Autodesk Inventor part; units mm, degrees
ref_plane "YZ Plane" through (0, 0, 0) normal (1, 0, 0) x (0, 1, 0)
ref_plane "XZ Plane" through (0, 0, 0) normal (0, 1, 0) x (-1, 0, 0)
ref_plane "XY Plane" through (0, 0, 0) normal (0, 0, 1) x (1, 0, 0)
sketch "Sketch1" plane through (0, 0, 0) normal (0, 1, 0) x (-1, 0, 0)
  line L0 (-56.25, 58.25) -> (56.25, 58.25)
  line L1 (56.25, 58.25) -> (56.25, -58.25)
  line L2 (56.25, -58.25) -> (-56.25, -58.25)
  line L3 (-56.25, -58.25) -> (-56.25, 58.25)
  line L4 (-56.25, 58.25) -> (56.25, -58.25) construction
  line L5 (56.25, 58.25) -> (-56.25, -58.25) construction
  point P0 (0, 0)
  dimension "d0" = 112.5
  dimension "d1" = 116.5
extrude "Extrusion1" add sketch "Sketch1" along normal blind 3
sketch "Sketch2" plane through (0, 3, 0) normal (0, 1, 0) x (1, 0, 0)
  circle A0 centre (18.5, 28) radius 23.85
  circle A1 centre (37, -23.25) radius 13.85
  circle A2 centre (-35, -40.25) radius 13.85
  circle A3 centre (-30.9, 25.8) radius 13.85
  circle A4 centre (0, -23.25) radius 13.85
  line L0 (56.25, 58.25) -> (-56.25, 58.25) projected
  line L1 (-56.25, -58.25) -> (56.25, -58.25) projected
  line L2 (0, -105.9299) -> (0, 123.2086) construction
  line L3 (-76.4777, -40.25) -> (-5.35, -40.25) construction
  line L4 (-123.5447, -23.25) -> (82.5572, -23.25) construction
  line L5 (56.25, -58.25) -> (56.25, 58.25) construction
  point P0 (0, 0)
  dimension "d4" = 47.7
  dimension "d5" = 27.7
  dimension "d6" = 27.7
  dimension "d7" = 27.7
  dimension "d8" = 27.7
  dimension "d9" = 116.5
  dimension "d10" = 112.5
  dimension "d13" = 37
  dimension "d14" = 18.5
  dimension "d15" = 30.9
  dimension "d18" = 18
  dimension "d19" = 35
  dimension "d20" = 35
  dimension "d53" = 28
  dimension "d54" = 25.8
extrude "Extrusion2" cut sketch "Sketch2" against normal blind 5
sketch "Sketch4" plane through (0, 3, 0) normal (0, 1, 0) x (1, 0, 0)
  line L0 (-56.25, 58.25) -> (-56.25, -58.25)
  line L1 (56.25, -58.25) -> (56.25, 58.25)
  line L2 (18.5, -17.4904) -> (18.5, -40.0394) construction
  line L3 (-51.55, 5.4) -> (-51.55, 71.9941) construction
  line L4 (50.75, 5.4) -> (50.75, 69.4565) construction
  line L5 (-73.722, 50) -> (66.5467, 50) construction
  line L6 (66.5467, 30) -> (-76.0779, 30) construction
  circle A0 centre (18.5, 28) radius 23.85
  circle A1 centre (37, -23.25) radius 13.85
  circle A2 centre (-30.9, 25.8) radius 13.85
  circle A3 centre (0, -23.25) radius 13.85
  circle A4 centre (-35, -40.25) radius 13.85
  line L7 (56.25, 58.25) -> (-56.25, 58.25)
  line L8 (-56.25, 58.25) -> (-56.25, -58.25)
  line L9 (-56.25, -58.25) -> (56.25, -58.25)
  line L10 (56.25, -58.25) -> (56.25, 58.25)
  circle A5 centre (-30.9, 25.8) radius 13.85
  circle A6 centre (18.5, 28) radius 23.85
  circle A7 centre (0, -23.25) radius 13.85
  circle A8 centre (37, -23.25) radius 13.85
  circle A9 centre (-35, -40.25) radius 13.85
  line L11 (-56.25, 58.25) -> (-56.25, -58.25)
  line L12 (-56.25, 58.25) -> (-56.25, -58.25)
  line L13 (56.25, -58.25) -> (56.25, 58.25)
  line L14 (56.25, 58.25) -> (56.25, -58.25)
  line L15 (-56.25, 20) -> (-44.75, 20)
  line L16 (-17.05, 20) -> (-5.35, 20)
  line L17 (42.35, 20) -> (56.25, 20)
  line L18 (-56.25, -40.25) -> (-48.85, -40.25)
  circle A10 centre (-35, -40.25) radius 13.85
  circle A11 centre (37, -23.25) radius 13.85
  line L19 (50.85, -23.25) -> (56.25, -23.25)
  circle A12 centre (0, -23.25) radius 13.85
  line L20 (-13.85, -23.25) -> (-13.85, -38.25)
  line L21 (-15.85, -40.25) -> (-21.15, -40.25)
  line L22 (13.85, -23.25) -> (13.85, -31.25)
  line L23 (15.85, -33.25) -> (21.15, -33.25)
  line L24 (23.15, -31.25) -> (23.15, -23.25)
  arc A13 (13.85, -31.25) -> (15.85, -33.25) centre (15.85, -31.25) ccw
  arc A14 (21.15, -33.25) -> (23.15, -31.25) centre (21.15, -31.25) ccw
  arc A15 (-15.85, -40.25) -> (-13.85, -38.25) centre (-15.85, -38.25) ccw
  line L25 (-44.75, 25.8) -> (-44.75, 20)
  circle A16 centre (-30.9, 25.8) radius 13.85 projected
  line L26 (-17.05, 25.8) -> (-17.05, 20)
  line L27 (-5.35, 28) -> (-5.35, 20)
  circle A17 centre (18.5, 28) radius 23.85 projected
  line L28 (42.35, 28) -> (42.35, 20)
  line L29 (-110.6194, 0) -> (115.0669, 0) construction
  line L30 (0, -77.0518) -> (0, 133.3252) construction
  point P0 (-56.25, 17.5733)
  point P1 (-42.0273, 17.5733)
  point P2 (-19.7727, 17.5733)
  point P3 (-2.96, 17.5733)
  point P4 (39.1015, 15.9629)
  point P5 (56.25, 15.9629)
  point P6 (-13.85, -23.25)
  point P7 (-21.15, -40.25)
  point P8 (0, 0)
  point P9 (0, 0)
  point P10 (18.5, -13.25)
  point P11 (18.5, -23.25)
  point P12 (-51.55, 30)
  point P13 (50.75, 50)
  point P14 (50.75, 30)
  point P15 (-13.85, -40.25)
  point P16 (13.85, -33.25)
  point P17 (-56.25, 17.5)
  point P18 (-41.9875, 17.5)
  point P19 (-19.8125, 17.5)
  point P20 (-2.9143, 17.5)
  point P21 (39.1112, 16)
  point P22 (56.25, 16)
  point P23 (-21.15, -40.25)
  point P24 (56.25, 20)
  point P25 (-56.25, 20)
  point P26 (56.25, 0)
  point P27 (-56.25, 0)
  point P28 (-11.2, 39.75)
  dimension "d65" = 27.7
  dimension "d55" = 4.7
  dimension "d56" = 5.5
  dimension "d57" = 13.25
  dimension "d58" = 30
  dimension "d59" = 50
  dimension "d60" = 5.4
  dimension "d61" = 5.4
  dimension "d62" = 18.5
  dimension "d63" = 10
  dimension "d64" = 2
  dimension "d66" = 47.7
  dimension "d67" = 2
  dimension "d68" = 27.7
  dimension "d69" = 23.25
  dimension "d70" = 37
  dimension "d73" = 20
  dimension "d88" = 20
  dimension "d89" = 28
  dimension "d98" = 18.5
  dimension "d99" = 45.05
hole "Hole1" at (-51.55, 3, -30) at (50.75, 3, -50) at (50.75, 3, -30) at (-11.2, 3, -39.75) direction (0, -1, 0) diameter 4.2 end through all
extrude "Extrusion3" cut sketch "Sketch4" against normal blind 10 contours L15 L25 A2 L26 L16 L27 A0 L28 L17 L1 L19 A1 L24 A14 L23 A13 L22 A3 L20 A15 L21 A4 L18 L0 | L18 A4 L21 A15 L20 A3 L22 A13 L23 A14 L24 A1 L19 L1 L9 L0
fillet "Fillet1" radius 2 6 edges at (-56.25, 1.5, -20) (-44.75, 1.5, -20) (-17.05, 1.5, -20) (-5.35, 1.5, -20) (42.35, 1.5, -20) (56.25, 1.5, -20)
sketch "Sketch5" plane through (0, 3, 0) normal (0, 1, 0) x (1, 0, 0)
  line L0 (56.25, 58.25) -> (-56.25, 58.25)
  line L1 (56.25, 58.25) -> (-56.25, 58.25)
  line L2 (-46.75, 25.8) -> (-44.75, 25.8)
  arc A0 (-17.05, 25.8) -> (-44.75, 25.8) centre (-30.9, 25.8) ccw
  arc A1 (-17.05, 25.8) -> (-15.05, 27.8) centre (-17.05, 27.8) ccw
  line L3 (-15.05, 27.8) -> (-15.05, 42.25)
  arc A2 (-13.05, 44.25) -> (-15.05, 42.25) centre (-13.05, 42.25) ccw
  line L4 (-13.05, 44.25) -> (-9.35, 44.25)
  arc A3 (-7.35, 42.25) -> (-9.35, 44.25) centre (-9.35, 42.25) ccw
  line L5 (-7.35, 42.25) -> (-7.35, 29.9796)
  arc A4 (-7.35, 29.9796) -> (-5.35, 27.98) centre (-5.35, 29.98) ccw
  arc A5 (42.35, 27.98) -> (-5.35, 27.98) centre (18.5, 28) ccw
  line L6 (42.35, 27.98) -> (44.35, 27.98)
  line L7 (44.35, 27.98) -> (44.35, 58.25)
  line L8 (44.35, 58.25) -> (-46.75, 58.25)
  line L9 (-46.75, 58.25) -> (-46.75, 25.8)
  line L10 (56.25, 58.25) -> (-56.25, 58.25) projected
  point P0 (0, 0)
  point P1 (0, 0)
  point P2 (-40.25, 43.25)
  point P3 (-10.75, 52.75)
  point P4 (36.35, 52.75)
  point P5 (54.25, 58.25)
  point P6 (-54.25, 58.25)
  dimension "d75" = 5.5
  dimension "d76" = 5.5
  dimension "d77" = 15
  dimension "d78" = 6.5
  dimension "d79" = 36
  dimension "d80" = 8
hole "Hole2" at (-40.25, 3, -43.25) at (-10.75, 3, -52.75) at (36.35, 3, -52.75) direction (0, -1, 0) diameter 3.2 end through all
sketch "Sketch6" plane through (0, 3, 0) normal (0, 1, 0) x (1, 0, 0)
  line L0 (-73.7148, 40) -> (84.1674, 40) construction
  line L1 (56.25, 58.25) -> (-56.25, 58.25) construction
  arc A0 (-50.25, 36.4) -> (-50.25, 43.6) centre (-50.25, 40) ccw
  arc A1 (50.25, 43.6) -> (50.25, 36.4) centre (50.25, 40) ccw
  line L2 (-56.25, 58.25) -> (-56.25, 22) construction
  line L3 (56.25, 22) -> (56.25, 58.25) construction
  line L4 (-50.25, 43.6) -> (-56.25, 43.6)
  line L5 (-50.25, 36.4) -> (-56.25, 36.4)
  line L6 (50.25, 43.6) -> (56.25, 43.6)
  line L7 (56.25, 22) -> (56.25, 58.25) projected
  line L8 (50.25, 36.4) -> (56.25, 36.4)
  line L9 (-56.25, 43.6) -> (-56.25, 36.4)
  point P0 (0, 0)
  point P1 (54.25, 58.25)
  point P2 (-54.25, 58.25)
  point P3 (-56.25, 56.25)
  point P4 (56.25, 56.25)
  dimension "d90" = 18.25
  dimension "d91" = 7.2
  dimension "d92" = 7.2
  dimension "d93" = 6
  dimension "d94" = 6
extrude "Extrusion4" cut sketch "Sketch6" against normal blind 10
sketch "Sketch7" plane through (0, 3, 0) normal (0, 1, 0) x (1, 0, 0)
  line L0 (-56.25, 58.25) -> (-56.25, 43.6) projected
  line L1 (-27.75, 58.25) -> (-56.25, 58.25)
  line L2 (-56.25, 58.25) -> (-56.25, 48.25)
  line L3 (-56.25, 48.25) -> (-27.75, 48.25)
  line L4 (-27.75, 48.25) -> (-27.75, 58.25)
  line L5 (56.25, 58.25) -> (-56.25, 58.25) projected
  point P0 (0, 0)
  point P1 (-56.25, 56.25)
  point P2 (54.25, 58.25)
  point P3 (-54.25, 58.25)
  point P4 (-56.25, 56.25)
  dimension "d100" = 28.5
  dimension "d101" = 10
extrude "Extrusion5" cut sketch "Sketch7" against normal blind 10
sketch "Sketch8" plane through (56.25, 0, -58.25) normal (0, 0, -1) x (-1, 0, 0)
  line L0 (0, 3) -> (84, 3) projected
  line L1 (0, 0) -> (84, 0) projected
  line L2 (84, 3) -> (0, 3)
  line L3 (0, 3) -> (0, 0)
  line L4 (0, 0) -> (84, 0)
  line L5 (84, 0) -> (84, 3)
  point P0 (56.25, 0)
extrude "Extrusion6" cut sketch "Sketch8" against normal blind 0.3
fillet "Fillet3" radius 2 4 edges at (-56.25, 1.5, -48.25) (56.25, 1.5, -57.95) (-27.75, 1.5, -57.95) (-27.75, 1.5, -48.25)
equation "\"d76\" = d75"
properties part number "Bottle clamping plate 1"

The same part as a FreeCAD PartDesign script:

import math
import FreeCAD as App
import Part
import Sketcher

V = App.Vector
Q = App.Units.Quantity


def edges_at(feature, points):
    """Names of the edges that pass closest to the given points."""
    edges = feature.Shape.Edges
    near = lambda p: min(range(len(edges)), key=lambda i: edges[i].distToShape(Part.Vertex(*p))[0])
    return sorted({f"Edge{near(p) + 1}" for p in points})

doc = App.newDocument("Part")
body = doc.addObject("PartDesign::Body", "Body")

# Sketch on XZ plane
sketch1 = body.newObject("Sketcher::SketchObject", "Sketch")
sketch1.AttachmentSupport = (doc.getObject("XZ_Plane"), [""])
sketch1.MapMode = "FlatFace"
sketch1.addGeometry(Part.LineSegment(V(-56.25, 58.25, 0), V(56.25, 58.25, 0)), False)
sketch1.addGeometry(Part.LineSegment(V(56.25, 58.25, 0), V(56.25, -58.25, 0)), False)
sketch1.addGeometry(Part.LineSegment(V(56.25, -58.25, 0), V(-56.25, -58.25, 0)), False)
sketch1.addGeometry(Part.LineSegment(V(-56.25, -58.25, 0), V(-56.25, 58.25, 0)), False)
sketch1.addConstraint(Sketcher.Constraint("Coincident", 0, 2, 1, 1))
sketch1.addConstraint(Sketcher.Constraint("Coincident", 1, 2, 2, 1))
sketch1.addConstraint(Sketcher.Constraint("Coincident", 2, 2, 3, 1))
sketch1.addConstraint(Sketcher.Constraint("Coincident", 3, 2, 0, 1))
sketch1.addConstraint(Sketcher.Constraint("Horizontal", 0))
sketch1.addConstraint(Sketcher.Constraint("Vertical", 1))
sketch1.addConstraint(Sketcher.Constraint("Horizontal", 2))
sketch1.addConstraint(Sketcher.Constraint("Vertical", 3))
sketch1.addConstraint(Sketcher.Constraint("Symmetric", 0, 2, 2, 2, -1, 1))
sketch1.addConstraint(Sketcher.Constraint("DistanceX", 0, 1, 0, 2, Q("112.5 mm")))
sketch1.addConstraint(Sketcher.Constraint("DistanceY", 1, 2, 1, 1, Q("116.5 mm")))
pad1 = body.newObject("PartDesign::Pad", "Pad")
pad1.Profile = sketch1
pad1.Length = 3
pad1.Reversed = True

# Sketch on XZ plane
sketch2 = body.newObject("Sketcher::SketchObject", "Sketch001")
sketch2.AttachmentSupport = (doc.getObject("XZ_Plane"), [""])
sketch2.MapMode = "FlatFace"
sketch2.AttachmentOffset = App.Placement(V(0, 0, -3), App.Rotation())
sketch2.addGeometry(Part.Circle(V(18.5, -28, 0), V(0, 0, 1), 23.85), False)
sketch2.addGeometry(Part.Circle(V(37, 23.25, 0), V(0, 0, 1), 13.85), False)
sketch2.addGeometry(Part.Circle(V(-35, 40.25, 0), V(0, 0, 1), 13.85), False)
sketch2.addGeometry(Part.Circle(V(-30.9, -25.8, 0), V(0, 0, 1), 13.85), False)
sketch2.addGeometry(Part.Circle(V(0, 23.25, 0), V(0, 0, 1), 13.85), False)
sketch2.addConstraint(Sketcher.Constraint("Equal", 1, 2))
sketch2.addConstraint(Sketcher.Constraint("Equal", 2, 3))
sketch2.addConstraint(Sketcher.Constraint("Equal", 3, 4))
sketch2.addConstraint(Sketcher.Constraint("PointOnObject", 4, 3, -2))
sketch2.addConstraint(Sketcher.Constraint("Horizontal", 1, 3, 4, 3))
sketch2.addConstraint(Sketcher.Constraint("Diameter", 0, Q("47.7 mm")))
sketch2.addConstraint(Sketcher.Constraint("Diameter", 1, Q("27.7 mm")))
sketch2.addConstraint(Sketcher.Constraint("DistanceY", 0, 3, -1, 1, Q("28 mm")))
sketch2.addConstraint(Sketcher.Constraint("DistanceX", -1, 1, 1, 3, Q("37 mm")))
sketch2.addConstraint(Sketcher.Constraint("DistanceX", 2, 3, -1, 1, Q("35 mm")))
sketch2.addConstraint(Sketcher.Constraint("DistanceX", -1, 1, 0, 3, Q("18.5 mm")))
sketch2.addConstraint(Sketcher.Constraint("DistanceX", 3, 3, -1, 1, Q("30.9 mm")))
sketch2.addConstraint(Sketcher.Constraint("DistanceY", 3, 3, -1, 1, Q("25.8 mm")))
sketch2.addConstraint(Sketcher.Constraint("DistanceY", 1, 3, 2, 3, Q("17 mm")))
sketch2.addConstraint(Sketcher.Constraint("DistanceY", -1, 1, 1, 3, Q("23.25 mm")))
pocket1 = body.newObject("PartDesign::Pocket", "Pocket")
pocket1.Profile = sketch2
pocket1.Length = 5
pocket1.Reversed = True

# Sketch on XZ plane
sketch3 = body.newObject("Sketcher::SketchObject", "Sketch002")
sketch3.AttachmentSupport = (doc.getObject("XZ_Plane"), [""])
sketch3.MapMode = "FlatFace"
sketch3.AttachmentOffset = App.Placement(V(0, 0, -3), App.Rotation())
sketch3.addGeometry(Part.Circle(V(-51.55, -30, 0), V(0, 0, 1), 2.1), False)
sketch3.addGeometry(Part.Circle(V(50.75, -50, 0), V(0, 0, 1), 2.1), False)
sketch3.addGeometry(Part.Circle(V(50.75, -30, 0), V(0, 0, 1), 2.1), False)
sketch3.addGeometry(Part.Circle(V(-11.2, -39.75, 0), V(0, 0, 1), 2.1), False)
sketch3.addConstraint(Sketcher.Constraint("Equal", 0, 1))
sketch3.addConstraint(Sketcher.Constraint("Equal", 1, 2))
sketch3.addConstraint(Sketcher.Constraint("Equal", 2, 3))
sketch3.addConstraint(Sketcher.Constraint("Horizontal", 0, 3, 2, 3))
sketch3.addConstraint(Sketcher.Constraint("Vertical", 1, 3, 2, 3))
sketch3.addConstraint(Sketcher.Constraint("Diameter", 0, Q("4.2 mm")))
sketch3.addConstraint(Sketcher.Constraint("DistanceY", 0, 3, -1, 1, Q("30 mm")))
sketch3.addConstraint(Sketcher.Constraint("DistanceY", 1, 3, -1, 1, Q("50 mm")))
sketch3.addConstraint(Sketcher.Constraint("DistanceX", 3, 3, -1, 1, Q("11.2 mm")))
sketch3.addConstraint(Sketcher.Constraint("DistanceX", 0, 3, 1, 3, Q("102.3 mm")))
sketch3.addConstraint(Sketcher.Constraint("DistanceX", 0, 3, -1, 1, Q("51.55 mm")))
sketch3.addConstraint(Sketcher.Constraint("DistanceY", 3, 3, -1, 1, Q("39.75 mm")))
doc.recompute()
hole = body.newObject("PartDesign::Hole", "Hole")
hole.Profile = sketch3
hole.ThreadType = "None"
hole.Diameter = 4.2
hole.DepthType = "ThroughAll"
hole.Reversed = True

# Sketch on XZ plane
sketch4 = body.newObject("Sketcher::SketchObject", "Sketch003")
sketch4.AttachmentSupport = (doc.getObject("XZ_Plane"), [""])
sketch4.MapMode = "FlatFace"
sketch4.AttachmentOffset = App.Placement(V(0, 0, -3), App.Rotation())
sketch4.addGeometry(Part.LineSegment(V(-44.75, -20, 0), V(-56.25, -20, 0)), False)
sketch4.addGeometry(Part.LineSegment(V(-56.25, -20, 0), V(-56.25, 58.25, 0)), False)
sketch4.addGeometry(Part.LineSegment(V(-56.25, 58.25, 0), V(56.25, 58.25, 0)), False)
sketch4.addGeometry(Part.LineSegment(V(56.25, 58.25, 0), V(56.25, -20, 0)), False)
sketch4.addGeometry(Part.LineSegment(V(56.25, -20, 0), V(42.35, -20, 0)), False)
sketch4.addGeometry(Part.LineSegment(V(42.35, -20, 0), V(42.35, -28, 0)), False)
sketch4.addGeometry(Part.ArcOfCircle(Part.Circle(V(18.5, -28, 0), V(0, 0, 1), 23.85), math.radians(0), math.radians(180)), False)
sketch4.addGeometry(Part.LineSegment(V(-5.35, -28, 0), V(-5.35, -20, 0)), False)
sketch4.addGeometry(Part.LineSegment(V(-5.35, -20, 0), V(-17.05, -20, 0)), False)
sketch4.addGeometry(Part.LineSegment(V(-17.05, -20, 0), V(-17.05, -25.8, 0)), False)
sketch4.addGeometry(Part.ArcOfCircle(Part.Circle(V(-30.9, -25.8, 0), V(0, 0, 1), 13.85), math.radians(0), math.radians(180)), False)
sketch4.addGeometry(Part.LineSegment(V(-44.75, -25.8, 0), V(-44.75, -20, 0)), False)
sketch4.addGeometry(Part.Circle(V(37, 23.25, 0), V(0, 0, 1), 13.85), False)
sketch4.addGeometry(Part.Circle(V(0, 23.25, 0), V(0, 0, 1), 13.85), False)
sketch4.addGeometry(Part.Circle(V(-35, 40.25, 0), V(0, 0, 1), 13.85), False)
sketch4.addConstraint(Sketcher.Constraint("Coincident", 0, 2, 1, 1))
sketch4.addConstraint(Sketcher.Constraint("Coincident", 1, 2, 2, 1))
sketch4.addConstraint(Sketcher.Constraint("Coincident", 2, 2, 3, 1))
sketch4.addConstraint(Sketcher.Constraint("Coincident", 3, 2, 4, 1))
sketch4.addConstraint(Sketcher.Constraint("Coincident", 4, 2, 5, 1))
sketch4.addConstraint(Sketcher.Constraint("Tangent", 5, 2, 6, 1))
sketch4.addConstraint(Sketcher.Constraint("Tangent", 6, 2, 7, 1))
sketch4.addConstraint(Sketcher.Constraint("Coincident", 7, 2, 8, 1))
sketch4.addConstraint(Sketcher.Constraint("Coincident", 8, 2, 9, 1))
sketch4.addConstraint(Sketcher.Constraint("Tangent", 9, 2, 10, 1))
sketch4.addConstraint(Sketcher.Constraint("Tangent", 10, 2, 11, 1))
sketch4.addConstraint(Sketcher.Constraint("Coincident", 11, 2, 0, 1))
sketch4.addConstraint(Sketcher.Constraint("Horizontal", 0))
sketch4.addConstraint(Sketcher.Constraint("Vertical", 1))
sketch4.addConstraint(Sketcher.Constraint("Horizontal", 2))
sketch4.addConstraint(Sketcher.Constraint("Vertical", 3))
sketch4.addConstraint(Sketcher.Constraint("Horizontal", 4))
sketch4.addConstraint(Sketcher.Constraint("Vertical", 5))
sketch4.addConstraint(Sketcher.Constraint("Vertical", 7))
sketch4.addConstraint(Sketcher.Constraint("Horizontal", 8))
sketch4.addConstraint(Sketcher.Constraint("Vertical", 9))
sketch4.addConstraint(Sketcher.Constraint("Vertical", 11))
sketch4.addConstraint(Sketcher.Constraint("Equal", 10, 12))
sketch4.addConstraint(Sketcher.Constraint("Equal", 12, 13))
sketch4.addConstraint(Sketcher.Constraint("Equal", 13, 14))
sketch4.addConstraint(Sketcher.Constraint("Symmetric", 0, 2, 3, 2, -2))
sketch4.addConstraint(Sketcher.Constraint("PointOnObject", 13, 3, -2))
sketch4.addConstraint(Sketcher.Constraint("Horizontal", 12, 3, 13, 3))
sketch4.addConstraint(Sketcher.Constraint("Horizontal", 4, 2, 7, 2))
sketch4.addConstraint(Sketcher.Constraint("Diameter", 12, Q("27.7 mm")))
sketch4.addConstraint(Sketcher.Constraint("Radius", 6, Q("23.85 mm")))
sketch4.addConstraint(Sketcher.Constraint("DistanceY", 6, 3, -1, 1, Q("28 mm")))
sketch4.addConstraint(Sketcher.Constraint("DistanceX", -1, 1, 12, 3, Q("37 mm")))
sketch4.addConstraint(Sketcher.Constraint("DistanceY", 0, 2, -1, 1, Q("20 mm")))
sketch4.addConstraint(Sketcher.Constraint("DistanceX", -1, 1, 6, 3, Q("18.5 mm")))
sketch4.addConstraint(Sketcher.Constraint("DistanceY", -1, 1, 12, 3, Q("23.25 mm")))
sketch4.addConstraint(Sketcher.Constraint("DistanceX", 0, 2, 0, 1, Q("11.5 mm")))
sketch4.addConstraint(Sketcher.Constraint("DistanceX", 2, 1, 2, 2, Q("112.5 mm")))
sketch4.addConstraint(Sketcher.Constraint("DistanceY", 9, 2, 9, 1, Q("5.8 mm")))
sketch4.addConstraint(Sketcher.Constraint("DistanceX", 14, 3, -1, 1, Q("35 mm")))
sketch4.addConstraint(Sketcher.Constraint("DistanceY", 13, 3, 14, 3, Q("17 mm")))
sketch4.addConstraint(Sketcher.Constraint("DistanceY", 14, 3, 1, 2, Q("18 mm")))
pocket2 = body.newObject("PartDesign::Pocket", "Pocket001")
pocket2.Profile = sketch4
pocket2.Length = 10
pocket2.Reversed = True
doc.recompute()

fillet = body.newObject("PartDesign::Fillet", "Fillet")
fillet.Base = (pocket2, edges_at(pocket2, [
    (-56.25, 1.5, -20),
    (-44.75, 1.5, -20),
    (-17.05, 1.5, -20),
    (-5.35, 1.5, -20),
    (42.35, 1.5, -20),
    (56.25, 1.5, -20),
]))
fillet.Radius = 2

# Sketch on XZ plane
sketch5 = body.newObject("Sketcher::SketchObject", "Sketch004")
sketch5.AttachmentSupport = (doc.getObject("XZ_Plane"), [""])
sketch5.MapMode = "FlatFace"
sketch5.AttachmentOffset = App.Placement(V(0, 0, -3), App.Rotation())
sketch5.addGeometry(Part.Circle(V(-40.25, -43.25, 0), V(0, 0, 1), 1.6), False)
sketch5.addGeometry(Part.Circle(V(-10.75, -52.75, 0), V(0, 0, 1), 1.6), False)
sketch5.addGeometry(Part.Circle(V(36.35, -52.75, 0), V(0, 0, 1), 1.6), False)
sketch5.addConstraint(Sketcher.Constraint("Equal", 0, 1))
sketch5.addConstraint(Sketcher.Constraint("Equal", 1, 2))
sketch5.addConstraint(Sketcher.Constraint("Horizontal", 1, 3, 2, 3))
sketch5.addConstraint(Sketcher.Constraint("Diameter", 0, Q("3.2 mm")))
sketch5.addConstraint(Sketcher.Constraint("DistanceX", 0, 3, 1, 3, Q("29.5 mm")))
sketch5.addConstraint(Sketcher.Constraint("DistanceY", 1, 3, 0, 3, Q("9.5 mm")))
sketch5.addConstraint(Sketcher.Constraint("DistanceX", 1, 3, 2, 3, Q("47.1 mm")))
sketch5.addConstraint(Sketcher.Constraint("DistanceX", 0, 3, -1, 1, Q("40.25 mm")))
sketch5.addConstraint(Sketcher.Constraint("DistanceY", 0, 3, -1, 1, Q("43.25 mm")))
doc.recompute()
hole2 = body.newObject("PartDesign::Hole", "Hole001")
hole2.Profile = sketch5
hole2.ThreadType = "None"
hole2.Diameter = 3.2
hole2.DepthType = "ThroughAll"
hole2.Reversed = True

# Sketch on XZ plane
sketch6 = body.newObject("Sketcher::SketchObject", "Sketch005")
sketch6.AttachmentSupport = (doc.getObject("XZ_Plane"), [""])
sketch6.MapMode = "FlatFace"
sketch6.AttachmentOffset = App.Placement(V(0, 0, -3), App.Rotation())
sketch6.addGeometry(Part.LineSegment(V(-56.25, -36.4, 0), V(-50.25, -36.4, 0)), False)
sketch6.addGeometry(Part.ArcOfCircle(Part.Circle(V(-50.25, -40, 0), V(0, 0, 1), 3.6), math.radians(-90), math.radians(90)), False)
sketch6.addGeometry(Part.LineSegment(V(-50.25, -43.6, 0), V(-56.25, -43.6, 0)), False)
sketch6.addGeometry(Part.LineSegment(V(-56.25, -43.6, 0), V(-56.25, -36.4, 0)), False)
sketch6.addGeometry(Part.LineSegment(V(56.25, -43.6, 0), V(50.25, -43.6, 0)), False)
sketch6.addGeometry(Part.ArcOfCircle(Part.Circle(V(50.25, -40, 0), V(0, 0, 1), 3.6), math.radians(90), math.radians(270)), False)
sketch6.addGeometry(Part.LineSegment(V(50.25, -36.4, 0), V(56.25, -36.4, 0)), False)
sketch6.addGeometry(Part.LineSegment(V(56.25, -36.4, 0), V(56.25, -43.6, 0)), False)
sketch6.addConstraint(Sketcher.Constraint("Tangent", 0, 2, 1, 2))
sketch6.addConstraint(Sketcher.Constraint("Tangent", 1, 1, 2, 1))
sketch6.addConstraint(Sketcher.Constraint("Coincident", 2, 2, 3, 1))
sketch6.addConstraint(Sketcher.Constraint("Coincident", 3, 2, 0, 1))
sketch6.addConstraint(Sketcher.Constraint("Tangent", 4, 2, 5, 2))
sketch6.addConstraint(Sketcher.Constraint("Tangent", 5, 1, 6, 1))
sketch6.addConstraint(Sketcher.Constraint("Coincident", 6, 2, 7, 1))
sketch6.addConstraint(Sketcher.Constraint("Coincident", 7, 2, 4, 1))
sketch6.addConstraint(Sketcher.Constraint("Horizontal", 0))
sketch6.addConstraint(Sketcher.Constraint("Horizontal", 2))
sketch6.addConstraint(Sketcher.Constraint("Vertical", 3))
sketch6.addConstraint(Sketcher.Constraint("Horizontal", 4))
sketch6.addConstraint(Sketcher.Constraint("Horizontal", 6))
sketch6.addConstraint(Sketcher.Constraint("Vertical", 7))
sketch6.addConstraint(Sketcher.Constraint("Equal", 1, 5))
sketch6.addConstraint(Sketcher.Constraint("Symmetric", 1, 3, 5, 3, -2))
sketch6.addConstraint(Sketcher.Constraint("Equal", 2, 4))
sketch6.addConstraint(Sketcher.Constraint("Radius", 1, Q("3.6 mm")))
sketch6.addConstraint(Sketcher.Constraint("DistanceX", 0, 1, 0, 2, Q("6 mm")))
sketch6.addConstraint(Sketcher.Constraint("DistanceY", 1, 3, -1, 1, Q("40 mm")))
sketch6.addConstraint(Sketcher.Constraint("DistanceX", 1, 3, 5, 3, Q("100.5 mm")))
pocket3 = body.newObject("PartDesign::Pocket", "Pocket002")
pocket3.Profile = sketch6
pocket3.Length = 10
pocket3.Reversed = True

# Sketch on XZ plane
sketch7 = body.newObject("Sketcher::SketchObject", "Sketch006")
sketch7.AttachmentSupport = (doc.getObject("XZ_Plane"), [""])
sketch7.MapMode = "FlatFace"
sketch7.AttachmentOffset = App.Placement(V(0, 0, -3), App.Rotation())
sketch7.addGeometry(Part.LineSegment(V(-27.75, -58.25, 0), V(-56.25, -58.25, 0)), False)
sketch7.addGeometry(Part.LineSegment(V(-56.25, -58.25, 0), V(-56.25, -48.25, 0)), False)
sketch7.addGeometry(Part.LineSegment(V(-56.25, -48.25, 0), V(-27.75, -48.25, 0)), False)
sketch7.addGeometry(Part.LineSegment(V(-27.75, -48.25, 0), V(-27.75, -58.25, 0)), False)
sketch7.addConstraint(Sketcher.Constraint("Coincident", 0, 2, 1, 1))
sketch7.addConstraint(Sketcher.Constraint("Coincident", 1, 2, 2, 1))
sketch7.addConstraint(Sketcher.Constraint("Coincident", 2, 2, 3, 1))
sketch7.addConstraint(Sketcher.Constraint("Coincident", 3, 2, 0, 1))
sketch7.addConstraint(Sketcher.Constraint("Horizontal", 0))
sketch7.addConstraint(Sketcher.Constraint("Vertical", 1))
sketch7.addConstraint(Sketcher.Constraint("Horizontal", 2))
sketch7.addConstraint(Sketcher.Constraint("Vertical", 3))
sketch7.addConstraint(Sketcher.Constraint("DistanceY", 1, 1, 1, 2, Q("10 mm")))
sketch7.addConstraint(Sketcher.Constraint("DistanceX", 0, 2, 0, 1, Q("28.5 mm")))
sketch7.addConstraint(Sketcher.Constraint("DistanceX", 0, 2, -1, 1, Q("56.25 mm")))
sketch7.addConstraint(Sketcher.Constraint("DistanceY", 0, 2, -1, 1, Q("58.25 mm")))
pocket4 = body.newObject("PartDesign::Pocket", "Pocket003")
pocket4.Profile = sketch7
pocket4.Length = 10
pocket4.Reversed = True

# Sketch on XY plane
sketch8 = body.newObject("Sketcher::SketchObject", "Sketch007")
sketch8.AttachmentSupport = (doc.getObject("XY_Plane"), [""])
sketch8.MapMode = "FlatFace"
sketch8.AttachmentOffset = App.Placement(V(0, 0, -58.25), App.Rotation())
sketch8.addGeometry(Part.LineSegment(V(-27.75, 3, 0), V(56.25, 3, 0)), False)
sketch8.addGeometry(Part.LineSegment(V(56.25, 3, 0), V(56.25, 0, 0)), False)
sketch8.addGeometry(Part.LineSegment(V(56.25, 0, 0), V(-27.75, 0, 0)), False)
sketch8.addGeometry(Part.LineSegment(V(-27.75, 0, 0), V(-27.75, 3, 0)), False)
sketch8.addConstraint(Sketcher.Constraint("Coincident", 0, 2, 1, 1))
sketch8.addConstraint(Sketcher.Constraint("Coincident", 1, 2, 2, 1))
sketch8.addConstraint(Sketcher.Constraint("Coincident", 2, 2, 3, 1))
sketch8.addConstraint(Sketcher.Constraint("Coincident", 3, 2, 0, 1))
sketch8.addConstraint(Sketcher.Constraint("Horizontal", 0))
sketch8.addConstraint(Sketcher.Constraint("Vertical", 1))
sketch8.addConstraint(Sketcher.Constraint("Horizontal", 2))
sketch8.addConstraint(Sketcher.Constraint("Vertical", 3))
sketch8.addConstraint(Sketcher.Constraint("PointOnObject", 1, 2, -1))
sketch8.addConstraint(Sketcher.Constraint("DistanceX", 0, 1, 0, 2, Q("84 mm")))
sketch8.addConstraint(Sketcher.Constraint("DistanceY", 1, 2, 1, 1, Q("3 mm")))
sketch8.addConstraint(Sketcher.Constraint("DistanceX", -1, 1, 0, 2, Q("56.25 mm")))
pocket5 = body.newObject("PartDesign::Pocket", "Pocket004")
pocket5.Profile = sketch8
pocket5.Length = 0.3
pocket5.Reversed = True
doc.recompute()

fillet2 = body.newObject("PartDesign::Fillet", "Fillet001")
fillet2.Base = (pocket5, edges_at(pocket5, [
    (-56.25, 1.5, -48.25),
    (56.25, 1.5, -57.95),
    (-27.75, 1.5, -57.95),
    (-27.75, 1.5, -48.25),
]))
fillet2.Radius = 2

doc.recompute()
